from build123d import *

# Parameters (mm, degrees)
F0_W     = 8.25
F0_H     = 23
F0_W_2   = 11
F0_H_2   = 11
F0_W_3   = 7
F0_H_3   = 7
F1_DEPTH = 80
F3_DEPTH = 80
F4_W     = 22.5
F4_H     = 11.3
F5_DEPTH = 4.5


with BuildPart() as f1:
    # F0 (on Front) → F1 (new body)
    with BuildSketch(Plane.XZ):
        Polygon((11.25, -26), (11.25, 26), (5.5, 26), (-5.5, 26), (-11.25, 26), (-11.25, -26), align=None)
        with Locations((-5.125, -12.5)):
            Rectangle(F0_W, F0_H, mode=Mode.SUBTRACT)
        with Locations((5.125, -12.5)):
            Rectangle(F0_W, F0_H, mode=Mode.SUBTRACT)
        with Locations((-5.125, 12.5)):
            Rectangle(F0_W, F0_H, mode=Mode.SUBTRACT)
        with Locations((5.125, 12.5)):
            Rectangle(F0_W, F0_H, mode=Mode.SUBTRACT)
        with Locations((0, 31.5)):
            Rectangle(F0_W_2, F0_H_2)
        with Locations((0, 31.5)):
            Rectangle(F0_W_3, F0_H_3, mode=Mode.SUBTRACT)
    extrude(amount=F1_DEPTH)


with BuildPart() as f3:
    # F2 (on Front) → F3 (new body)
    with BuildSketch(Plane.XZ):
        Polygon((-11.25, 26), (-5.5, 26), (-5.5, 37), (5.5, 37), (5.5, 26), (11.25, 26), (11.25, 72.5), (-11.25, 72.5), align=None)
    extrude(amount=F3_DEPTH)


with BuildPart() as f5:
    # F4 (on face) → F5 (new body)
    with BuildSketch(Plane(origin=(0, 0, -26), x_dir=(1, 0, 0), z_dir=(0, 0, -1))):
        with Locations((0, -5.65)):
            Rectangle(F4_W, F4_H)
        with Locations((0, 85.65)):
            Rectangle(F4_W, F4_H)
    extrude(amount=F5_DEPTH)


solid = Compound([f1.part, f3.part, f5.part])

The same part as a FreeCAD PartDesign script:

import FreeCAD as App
import Part
import Sketcher
from FreeCAD import Vector
Q = App.Units.Quantity


def add_polygon(sketch, points):
    """Adds a closed chain of lines whose ends are joined by coincident constraints."""
    first, n = sketch.GeometryCount, len(points)
    for a, b in zip(points, points[1:] + points[:1]):
        sketch.addGeometry(Part.LineSegment(App.Vector(*a, 0), App.Vector(*b, 0)), False)
    for i in range(n):
        sketch.addConstraint(Sketcher.Constraint("Coincident", first + i, 2, first + (i + 1) % n, 1))

doc = App.newDocument("Part")
body = doc.addObject("PartDesign::Body", "Body")

# Sketch on XZ plane
sketch1 = body.newObject("Sketcher::SketchObject", "Sketch")
sketch1.AttachmentSupport = (doc.getObject("XZ_Plane"), [""])
sketch1.MapMode = "FlatFace"
add_polygon(sketch1, [(11, -26), (11, 26), (6, 26), (6, 37), (-6, 37), (-6, 26), (-11, 26), (-11, -26)])  # lines 0-7
add_polygon(sketch1, [(-1, -24), (-9, -24), (-9, -1), (-1, -1)])  # lines 8-11
add_polygon(sketch1, [(9, -24), (1, -24), (1, -1), (9, -1)])  # lines 12-15
add_polygon(sketch1, [(-1, 1), (-9, 1), (-9, 24), (-1, 24)])  # lines 16-19
add_polygon(sketch1, [(9, 1), (1, 1), (1, 24), (9, 24)])  # lines 20-23
add_polygon(sketch1, [(4, 28), (-4, 28), (-4, 35), (4, 35)])  # lines 24-27
sketch1.addConstraint([
    Sketcher.Constraint("Vertical", 0),
    Sketcher.Constraint("Horizontal", 1),
    Sketcher.Constraint("Vertical", 2),
    Sketcher.Constraint("Horizontal", 3),
    Sketcher.Constraint("Vertical", 4),
    Sketcher.Constraint("Horizontal", 5),
    Sketcher.Constraint("Vertical", 6),
    Sketcher.Constraint("Horizontal", 7),
    Sketcher.Constraint("Horizontal", 8),
    Sketcher.Constraint("Vertical", 9),
    Sketcher.Constraint("Horizontal", 10),
    Sketcher.Constraint("Vertical", 11),
    Sketcher.Constraint("Horizontal", 12),
    Sketcher.Constraint("Vertical", 13),
    Sketcher.Constraint("Horizontal", 14),
    Sketcher.Constraint("Vertical", 15),
    Sketcher.Constraint("Horizontal", 16),
    Sketcher.Constraint("Vertical", 17),
    Sketcher.Constraint("Horizontal", 18),
    Sketcher.Constraint("Vertical", 19),
    Sketcher.Constraint("Horizontal", 20),
    Sketcher.Constraint("Vertical", 21),
    Sketcher.Constraint("Horizontal", 22),
    Sketcher.Constraint("Vertical", 23),
    Sketcher.Constraint("Horizontal", 24),
    Sketcher.Constraint("Vertical", 25),
    Sketcher.Constraint("Horizontal", 26),
    Sketcher.Constraint("Vertical", 27),
    Sketcher.Constraint("Symmetric", 0, 2, 6, 2, -1, 1),
    Sketcher.Constraint("Symmetric", 14, 2, 16, 2, -1, 1),
    Sketcher.Constraint("Symmetric", 12, 2, 18, 2, -1, 1),
    Sketcher.Constraint("Symmetric", 10, 2, 20, 2, -1, 1),
    Sketcher.Constraint("Symmetric", 8, 2, 22, 2, -1, 1),
    Sketcher.Constraint("Symmetric", 1, 2, 4, 2, -2),
    Sketcher.Constraint("Symmetric", 11, 2, 12, 2, -2),
    Sketcher.Constraint("Symmetric", 9, 2, 14, 2, -2),
    Sketcher.Constraint("Equal", 3, 2),
    Sketcher.Constraint("Equal", 26, 25),
    Sketcher.Constraint("DistanceX", 3, 2, 3, 1, Q("11 mm")),
    Sketcher.Constraint("DistanceX", 24, 2, 24, 1, Q("7 mm")),
    Sketcher.Constraint("DistanceY", 0, 1, 0, 2, Q("52 mm")),
    Sketcher.Constraint("DistanceY", 9, 1, 9, 2, Q("23 mm")),
    Sketcher.Constraint("DistanceX", 7, 1, 7, 2, Q("22.5 mm")),
    Sketcher.Constraint("DistanceY", 8, 2, -1, 1, Q("24 mm")),
    Sketcher.Constraint("DistanceX", 10, 2, -1, 1, Q("1 mm")),
    Sketcher.Constraint("DistanceY", -1, 1, 24, 2, Q("28 mm")),
    Sketcher.Constraint("DistanceX", 6, 2, 8, 2, Q("2 mm")),
    Sketcher.Constraint("DistanceX", 4, 2, 24, 2, Q("2 mm")),
])
pad1 = body.newObject("PartDesign::Pad", "Pad")
pad1.Profile = sketch1
pad1.Length = 80
body2 = doc.addObject("PartDesign::Body", "Body001")

# Sketch on XZ plane
sketch2 = body2.newObject("Sketcher::SketchObject", "Sketch001")
sketch2.AttachmentSupport = (doc.getObject("XZ_Plane001"), [""])
sketch2.MapMode = "FlatFace"
add_polygon(sketch2, [(-11, 26), (-6, 26), (-6, 37), (6, 37), (6, 26), (11, 26), (11, 72), (-11, 72)])  # lines 0-7
sketch2.addConstraint([
    Sketcher.Constraint("Horizontal", 0),
    Sketcher.Constraint("Vertical", 1),
    Sketcher.Constraint("Horizontal", 2),
    Sketcher.Constraint("Vertical", 3),
    Sketcher.Constraint("Horizontal", 4),
    Sketcher.Constraint("Vertical", 5),
    Sketcher.Constraint("Horizontal", 6),
    Sketcher.Constraint("Vertical", 7),
    Sketcher.Constraint("Symmetric", 0, 2, 3, 2, -2),
    Sketcher.Constraint("Equal", 0, 4),
    Sketcher.Constraint("Equal", 2, 1),
    Sketcher.Constraint("DistanceX", 2, 1, 2, 2, Q("11 mm")),
    Sketcher.Constraint("DistanceX", 6, 2, 6, 1, Q("22.5 mm")),
    Sketcher.Constraint("DistanceY", 5, 1, 5, 2, Q("46.5 mm")),
    Sketcher.Constraint("DistanceY", -1, 1, 0, 2, Q("26 mm")),
])
pad2 = body2.newObject("PartDesign::Pad", "Pad001")
pad2.Profile = sketch2
pad2.Length = 80
body3 = doc.addObject("PartDesign::Body", "Body002")
body3.AllowCompound = True

# Sketch on XY plane
sketch3 = body3.newObject("Sketcher::SketchObject", "Sketch002")
sketch3.AttachmentSupport = (doc.getObject("XY_Plane002"), [""])
sketch3.MapMode = "FlatFace"
sketch3.AttachmentOffset = App.Placement(Vector(0, 0, -26), App.Rotation())
add_polygon(sketch3, [(-11, 0), (-11, 11), (11, 11), (11, 0)])  # lines 0-3
add_polygon(sketch3, [(-11, -91), (-11, -80), (11, -80), (11, -91)])  # lines 4-7
sketch3.addConstraint([
    Sketcher.Constraint("Vertical", 0),
    Sketcher.Constraint("Horizontal", 1),
    Sketcher.Constraint("Vertical", 2),
    Sketcher.Constraint("Horizontal", 3),
    Sketcher.Constraint("Vertical", 4),
    Sketcher.Constraint("Horizontal", 5),
    Sketcher.Constraint("Vertical", 6),
    Sketcher.Constraint("Horizontal", 7),
    Sketcher.Constraint("Symmetric", 2, 2, 3, 2, -1, 1),
    Sketcher.Constraint("Vertical", 3, 2, 4, 2),
    Sketcher.Constraint("Vertical", 2, 2, 5, 2),
    Sketcher.Constraint("Equal", 2, 4),
    Sketcher.Constraint("DistanceX", 1, 1, 1, 2, Q("22.5 mm")),
    Sketcher.Constraint("DistanceY", 0, 1, 0, 2, Q("11.3 mm")),
    Sketcher.Constraint("DistanceY", 4, 2, -1, 1, Q("80 mm")),
])
pad3 = body3.newObject("PartDesign::Pad", "Pad002")
pad3.Profile = sketch3
pad3.Length = 4.5
pad3.Reversed = True

doc.recompute()
